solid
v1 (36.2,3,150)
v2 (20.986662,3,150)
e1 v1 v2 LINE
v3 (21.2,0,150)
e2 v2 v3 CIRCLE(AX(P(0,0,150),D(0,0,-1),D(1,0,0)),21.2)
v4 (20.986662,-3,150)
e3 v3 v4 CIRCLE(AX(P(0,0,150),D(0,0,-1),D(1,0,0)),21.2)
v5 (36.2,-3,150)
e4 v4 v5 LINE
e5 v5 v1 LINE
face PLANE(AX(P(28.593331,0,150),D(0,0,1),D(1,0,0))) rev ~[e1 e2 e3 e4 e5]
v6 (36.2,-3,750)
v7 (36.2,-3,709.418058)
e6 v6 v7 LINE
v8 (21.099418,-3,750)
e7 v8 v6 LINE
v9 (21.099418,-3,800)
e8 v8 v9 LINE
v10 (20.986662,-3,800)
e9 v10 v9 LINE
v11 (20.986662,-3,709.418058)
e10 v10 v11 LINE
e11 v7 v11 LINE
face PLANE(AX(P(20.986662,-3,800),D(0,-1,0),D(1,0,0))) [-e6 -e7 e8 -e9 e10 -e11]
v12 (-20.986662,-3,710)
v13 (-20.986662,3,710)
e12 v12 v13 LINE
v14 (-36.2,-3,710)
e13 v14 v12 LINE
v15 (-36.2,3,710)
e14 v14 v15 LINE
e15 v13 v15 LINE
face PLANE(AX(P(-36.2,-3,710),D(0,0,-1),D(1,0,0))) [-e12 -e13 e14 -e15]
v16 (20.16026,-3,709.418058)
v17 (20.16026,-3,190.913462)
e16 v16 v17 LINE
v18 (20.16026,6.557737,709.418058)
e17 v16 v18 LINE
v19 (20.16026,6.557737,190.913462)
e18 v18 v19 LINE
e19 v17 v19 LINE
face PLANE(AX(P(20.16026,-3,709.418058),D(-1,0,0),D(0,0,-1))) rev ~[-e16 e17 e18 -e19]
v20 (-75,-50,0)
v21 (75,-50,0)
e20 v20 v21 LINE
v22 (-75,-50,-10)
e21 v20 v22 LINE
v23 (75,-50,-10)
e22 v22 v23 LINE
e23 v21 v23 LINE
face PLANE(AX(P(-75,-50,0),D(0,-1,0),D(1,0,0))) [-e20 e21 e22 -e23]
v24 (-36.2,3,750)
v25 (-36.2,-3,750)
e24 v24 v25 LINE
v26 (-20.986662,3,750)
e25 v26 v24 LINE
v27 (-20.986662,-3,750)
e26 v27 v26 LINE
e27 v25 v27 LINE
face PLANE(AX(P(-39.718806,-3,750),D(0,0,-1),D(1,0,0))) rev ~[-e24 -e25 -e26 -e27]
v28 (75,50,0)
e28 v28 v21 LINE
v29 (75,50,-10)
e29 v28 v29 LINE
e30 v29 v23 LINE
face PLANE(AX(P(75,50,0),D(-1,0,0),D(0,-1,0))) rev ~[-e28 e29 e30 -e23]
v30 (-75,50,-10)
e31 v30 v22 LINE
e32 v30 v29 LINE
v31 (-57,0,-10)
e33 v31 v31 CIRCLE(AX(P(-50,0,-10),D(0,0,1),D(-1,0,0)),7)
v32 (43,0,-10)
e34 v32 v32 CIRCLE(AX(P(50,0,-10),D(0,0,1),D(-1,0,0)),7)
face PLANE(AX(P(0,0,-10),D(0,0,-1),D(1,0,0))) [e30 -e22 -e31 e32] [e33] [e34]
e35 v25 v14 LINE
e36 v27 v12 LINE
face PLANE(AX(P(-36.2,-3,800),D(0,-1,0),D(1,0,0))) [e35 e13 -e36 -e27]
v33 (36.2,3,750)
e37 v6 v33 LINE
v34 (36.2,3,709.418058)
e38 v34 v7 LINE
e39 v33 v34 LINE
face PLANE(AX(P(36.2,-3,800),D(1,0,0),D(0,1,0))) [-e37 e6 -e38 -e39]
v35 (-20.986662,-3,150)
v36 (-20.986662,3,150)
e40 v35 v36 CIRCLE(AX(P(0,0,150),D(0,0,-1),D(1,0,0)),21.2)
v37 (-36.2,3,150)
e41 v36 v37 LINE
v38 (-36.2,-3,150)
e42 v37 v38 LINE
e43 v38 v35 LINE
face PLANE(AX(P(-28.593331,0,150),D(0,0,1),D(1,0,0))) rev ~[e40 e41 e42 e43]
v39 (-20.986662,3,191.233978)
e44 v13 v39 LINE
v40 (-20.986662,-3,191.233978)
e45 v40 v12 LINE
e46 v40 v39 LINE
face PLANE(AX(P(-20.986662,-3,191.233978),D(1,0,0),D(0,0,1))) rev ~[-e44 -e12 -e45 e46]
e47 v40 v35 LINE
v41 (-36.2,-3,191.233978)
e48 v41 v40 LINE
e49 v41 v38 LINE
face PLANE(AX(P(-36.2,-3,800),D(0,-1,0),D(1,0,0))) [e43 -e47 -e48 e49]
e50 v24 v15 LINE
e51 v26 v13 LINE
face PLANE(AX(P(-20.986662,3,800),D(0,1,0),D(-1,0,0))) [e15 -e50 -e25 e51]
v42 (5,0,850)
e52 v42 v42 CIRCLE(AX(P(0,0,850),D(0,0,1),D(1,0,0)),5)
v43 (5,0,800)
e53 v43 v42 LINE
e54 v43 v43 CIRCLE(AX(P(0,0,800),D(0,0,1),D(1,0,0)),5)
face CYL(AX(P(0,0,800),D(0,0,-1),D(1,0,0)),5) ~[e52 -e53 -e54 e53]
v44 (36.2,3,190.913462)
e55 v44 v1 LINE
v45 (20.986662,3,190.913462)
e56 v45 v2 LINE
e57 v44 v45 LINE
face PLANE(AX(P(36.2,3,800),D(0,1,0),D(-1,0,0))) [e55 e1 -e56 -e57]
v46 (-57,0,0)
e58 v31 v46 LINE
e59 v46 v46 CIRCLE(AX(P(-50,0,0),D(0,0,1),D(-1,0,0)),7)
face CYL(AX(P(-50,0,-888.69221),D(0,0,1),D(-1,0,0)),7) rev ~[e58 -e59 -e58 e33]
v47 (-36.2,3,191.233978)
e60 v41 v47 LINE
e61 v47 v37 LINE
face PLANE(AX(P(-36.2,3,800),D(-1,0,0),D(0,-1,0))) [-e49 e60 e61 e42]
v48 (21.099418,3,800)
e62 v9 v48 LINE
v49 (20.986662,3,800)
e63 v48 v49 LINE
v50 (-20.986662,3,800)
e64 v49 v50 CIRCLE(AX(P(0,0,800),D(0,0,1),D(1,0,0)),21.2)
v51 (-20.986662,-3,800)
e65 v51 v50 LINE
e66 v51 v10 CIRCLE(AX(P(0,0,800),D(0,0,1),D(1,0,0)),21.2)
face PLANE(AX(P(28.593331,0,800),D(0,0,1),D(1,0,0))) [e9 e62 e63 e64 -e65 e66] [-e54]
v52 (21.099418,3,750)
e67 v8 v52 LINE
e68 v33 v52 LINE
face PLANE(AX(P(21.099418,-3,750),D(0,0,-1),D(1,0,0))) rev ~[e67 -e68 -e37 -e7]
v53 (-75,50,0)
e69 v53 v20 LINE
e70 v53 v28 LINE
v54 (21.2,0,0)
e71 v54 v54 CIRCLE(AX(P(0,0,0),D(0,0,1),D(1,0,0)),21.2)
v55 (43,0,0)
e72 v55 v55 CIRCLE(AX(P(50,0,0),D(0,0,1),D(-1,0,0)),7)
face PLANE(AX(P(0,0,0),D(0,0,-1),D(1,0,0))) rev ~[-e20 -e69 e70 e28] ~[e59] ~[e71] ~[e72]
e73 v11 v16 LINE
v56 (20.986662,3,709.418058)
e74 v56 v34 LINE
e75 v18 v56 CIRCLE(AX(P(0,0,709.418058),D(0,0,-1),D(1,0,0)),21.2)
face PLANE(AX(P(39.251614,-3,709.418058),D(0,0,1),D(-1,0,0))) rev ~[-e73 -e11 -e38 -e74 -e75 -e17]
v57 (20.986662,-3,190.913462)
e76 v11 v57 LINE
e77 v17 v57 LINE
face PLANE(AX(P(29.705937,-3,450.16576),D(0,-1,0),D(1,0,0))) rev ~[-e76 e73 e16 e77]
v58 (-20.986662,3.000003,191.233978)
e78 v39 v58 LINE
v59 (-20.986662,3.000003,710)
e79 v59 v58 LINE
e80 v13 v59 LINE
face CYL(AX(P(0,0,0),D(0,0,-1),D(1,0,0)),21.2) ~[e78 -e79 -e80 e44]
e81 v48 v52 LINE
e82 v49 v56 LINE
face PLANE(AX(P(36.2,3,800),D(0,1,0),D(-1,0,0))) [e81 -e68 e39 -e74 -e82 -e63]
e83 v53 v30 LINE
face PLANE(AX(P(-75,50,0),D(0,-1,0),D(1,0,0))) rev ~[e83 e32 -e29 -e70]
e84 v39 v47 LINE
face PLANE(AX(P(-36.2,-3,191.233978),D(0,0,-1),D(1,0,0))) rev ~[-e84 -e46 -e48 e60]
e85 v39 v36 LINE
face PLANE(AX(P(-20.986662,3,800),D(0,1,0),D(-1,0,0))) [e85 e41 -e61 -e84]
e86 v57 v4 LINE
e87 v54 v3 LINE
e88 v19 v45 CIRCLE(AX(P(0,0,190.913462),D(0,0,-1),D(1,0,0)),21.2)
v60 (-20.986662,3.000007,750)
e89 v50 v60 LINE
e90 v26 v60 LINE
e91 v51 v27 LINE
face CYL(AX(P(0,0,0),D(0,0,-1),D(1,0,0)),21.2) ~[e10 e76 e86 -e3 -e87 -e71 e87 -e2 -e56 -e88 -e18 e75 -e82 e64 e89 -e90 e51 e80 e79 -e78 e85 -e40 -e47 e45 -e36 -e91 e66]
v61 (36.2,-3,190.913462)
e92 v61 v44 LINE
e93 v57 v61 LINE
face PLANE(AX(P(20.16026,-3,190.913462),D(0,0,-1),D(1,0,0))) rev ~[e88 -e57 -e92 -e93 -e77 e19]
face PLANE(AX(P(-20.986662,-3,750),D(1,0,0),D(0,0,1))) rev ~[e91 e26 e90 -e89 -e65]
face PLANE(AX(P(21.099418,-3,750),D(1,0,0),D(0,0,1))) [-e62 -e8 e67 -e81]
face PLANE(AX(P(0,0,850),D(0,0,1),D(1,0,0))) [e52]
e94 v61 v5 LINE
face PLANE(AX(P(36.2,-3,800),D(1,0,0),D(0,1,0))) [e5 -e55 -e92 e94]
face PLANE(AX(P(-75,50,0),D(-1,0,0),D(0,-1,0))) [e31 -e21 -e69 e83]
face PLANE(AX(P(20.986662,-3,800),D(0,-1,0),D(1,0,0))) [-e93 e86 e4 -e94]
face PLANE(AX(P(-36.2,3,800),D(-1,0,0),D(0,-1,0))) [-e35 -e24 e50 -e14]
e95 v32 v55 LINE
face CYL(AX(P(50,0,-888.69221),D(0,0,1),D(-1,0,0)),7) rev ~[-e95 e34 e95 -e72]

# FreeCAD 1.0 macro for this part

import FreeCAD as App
import Part
import Sketcher

V = App.Vector
Q = App.Units.Quantity


def add_polygon(sketch, points):
    """Adds a closed chain of lines whose ends are joined by coincident constraints."""
    first, n = sketch.GeometryCount, len(points)
    for a, b in zip(points, points[1:] + points[:1]):
        sketch.addGeometry(Part.LineSegment(App.Vector(*a, 0), App.Vector(*b, 0)), False)
    for i in range(n):
        sketch.addConstraint(Sketcher.Constraint("Coincident", first + i, 2, first + (i + 1) % n, 1))

doc = App.newDocument("Part")
body = doc.addObject("PartDesign::Body", "Body")

sketch1 = body.newObject("Sketcher::SketchObject", "Sketch")
sketch1.AttachmentSupport = (doc.getObject("XY_Plane"), [""])
sketch1.MapMode = "FlatFace"
sketch1.addGeometry(Part.Circle(V(0, 0, 0), V(0, 0, 1), 21), False)
sketch1.addConstraint([
    Sketcher.Constraint("Coincident", 0, 3, -1, 1),
    Sketcher.Constraint("Diameter", 0, Q("42.4 mm")),
])
pad1 = body.newObject("PartDesign::Pad", "Pad")
pad1.Profile = sketch1
pad1.Length = 800

sketch2 = body.newObject("Sketcher::SketchObject", "Sketch001")
sketch2.AttachmentSupport = (doc.getObject("XY_Plane"), [""])
sketch2.MapMode = "FlatFace"
sketch2.AttachmentOffset = App.Placement(V(0, 0, 800), App.Rotation())
sketch2.addGeometry(Part.Circle(V(0, 0, 0), V(0, 0, 1), 5), False)
sketch2.addConstraint([
    Sketcher.Constraint("Coincident", 0, 3, -1, 1),
    Sketcher.Constraint("Diameter", 0, Q("10 mm")),
])
pad2 = body.newObject("PartDesign::Pad", "Pad001")
pad2.Profile = sketch2
pad2.Length = 50

sketch3 = body.newObject("Sketcher::SketchObject", "Sketch002")
sketch3.AttachmentSupport = (doc.getObject("XY_Plane"), [""])
sketch3.MapMode = "FlatFace"
add_polygon(sketch3, [(-75, -50), (-75, 50), (75, 50), (75, -50)])
sketch3.addConstraint([
    Sketcher.Constraint("Vertical", 0),
    Sketcher.Constraint("Horizontal", 1),
    Sketcher.Constraint("Vertical", 2),
    Sketcher.Constraint("Horizontal", 3),
    Sketcher.Constraint("Symmetric", 0, 2, 2, 2, -1, 1),
    Sketcher.Constraint("DistanceX", 1, 1, 1, 2, Q("150 mm")),
    Sketcher.Constraint("DistanceY", 0, 1, 0, 2, Q("100 mm")),
])
pad3 = body.newObject("PartDesign::Pad", "Pad002")
pad3.Profile = sketch3
pad3.Length = 10
pad3.Reversed = True

sketch4 = body.newObject("Sketcher::SketchObject", "Sketch003")
sketch4.AttachmentSupport = (doc.getObject("XY_Plane"), [""])
sketch4.MapMode = "FlatFace"
sketch4.AttachmentOffset = App.Placement(V(0, 0, -10), App.Rotation())
sketch4.addGeometry([
    Part.Circle(V(-50, 0, 0), V(0, 0, 1), 7),
    Part.Circle(V(50, 0, 0), V(0, 0, 1), 7),
], False)
sketch4.addConstraint([
    Sketcher.Constraint("Equal", 0, 1),
    Sketcher.Constraint("Symmetric", 0, 3, 1, 3, -1, 1),
    Sketcher.Constraint("PointOnObject", 0, 3, -1),
    Sketcher.Constraint("Diameter", 0, Q("14 mm")),
    Sketcher.Constraint("DistanceX", 0, 3, -1, 1, Q("50 mm")),
])
doc.recompute()
hole = body.newObject("PartDesign::Hole", "Hole")
hole.Profile = sketch4
hole.ThreadType = "None"
hole.Diameter = 14
hole.DepthType = "ThroughAll"
hole.Reversed = True

sketch5 = body.newObject("Sketcher::SketchObject", "Sketch004")
sketch5.AttachmentSupport = (doc.getObject("XY_Plane"), [""])
sketch5.MapMode = "FlatFace"
sketch5.AttachmentOffset = App.Placement(V(0, 0, 800), App.Rotation())
add_polygon(sketch5, [(36, -3), (36, 3), (21, 3), (21, -3)])
add_polygon(sketch5, [(-36, 3), (-36, -3), (-21, -3), (-21, 3)])
sketch5.addConstraint([
    Sketcher.Constraint("Vertical", 0),
    Sketcher.Constraint("Horizontal", 1),
    Sketcher.Constraint("Vertical", 2),
    Sketcher.Constraint("Horizontal", 3),
    Sketcher.Constraint("Vertical", 4),
    Sketcher.Constraint("Horizontal", 5),
    Sketcher.Constraint("Vertical", 6),
    Sketcher.Constraint("Horizontal", 7),
    Sketcher.Constraint("Symmetric", 0, 2, 4, 2, -1, 1),
    Sketcher.Constraint("Symmetric", 2, 2, 6, 2, -1, 1),
    Sketcher.Constraint("Horizontal", 3, 2, 4, 2),
    Sketcher.Constraint("DistanceY", 0, 1, 0, 2, Q("6 mm")),
    Sketcher.Constraint("DistanceX", -1, 1, 0, 2, Q("36.2 mm")),
    Sketcher.Constraint("DistanceX", 1, 2, 1, 1, Q("15.213338 mm")),
])
pad4 = body.newObject("PartDesign::Pad", "Pad003")
pad4.Profile = sketch5
pad4.Length = 650
pad4.Reversed = True

sketch6 = body.newObject("Sketcher::SketchObject", "Sketch005")
sketch6.AttachmentSupport = (doc.getObject("XZ_Plane"), [""])
sketch6.MapMode = "FlatFace"
sketch6.AttachmentOffset = App.Placement(V(0, 0, 3), App.Rotation())
add_polygon(sketch6, [(-40, 800), (-40, 750), (-21, 750), (-21, 800)])
add_polygon(sketch6, [(21, 800), (21, 750), (39, 750), (39, 800)])
sketch6.addConstraint([
    Sketcher.Constraint("Vertical", 0),
    Sketcher.Constraint("Horizontal", 1),
    Sketcher.Constraint("Vertical", 2),
    Sketcher.Constraint("Horizontal", 3),
    Sketcher.Constraint("Vertical", 4),
    Sketcher.Constraint("Horizontal", 5),
    Sketcher.Constraint("Vertical", 6),
    Sketcher.Constraint("Horizontal", 7),
    Sketcher.Constraint("Horizontal", 1, 2, 4, 2),
    Sketcher.Constraint("Horizontal", 3, 2, 6, 2),
    Sketcher.Constraint("DistanceY", 0, 2, 0, 1, Q("50 mm")),
    Sketcher.Constraint("DistanceY", -1, 1, 0, 2, Q("750 mm")),
    Sketcher.Constraint("DistanceX", 1, 1, 1, 2, Q("18.732145 mm")),
    Sketcher.Constraint("DistanceX", 5, 1, 5, 2, Q("18.157326 mm")),
    Sketcher.Constraint("DistanceX", 1, 2, -1, 1, Q("20.986662 mm")),
    Sketcher.Constraint("DistanceX", -1, 1, 4, 2, Q("21.099418 mm")),
])
pocket1 = body.newObject("PartDesign::Pocket", "Pocket")
pocket1.Profile = sketch6
pocket1.Length = 25

sketch7 = body.newObject("Sketcher::SketchObject", "Sketch006")
sketch7.AttachmentSupport = (doc.getObject("XZ_Plane"), [""])
sketch7.MapMode = "FlatFace"
sketch7.AttachmentOffset = App.Placement(V(0, 0, 3), App.Rotation())
add_polygon(sketch7, [(-36, 710), (-36, 191), (-21, 191), (-21, 710)])
add_polygon(sketch7, [(39, 191), (39, 709), (20, 709), (20, 191)])
sketch7.addConstraint([
    Sketcher.Constraint("Vertical", 0),
    Sketcher.Constraint("Horizontal", 1),
    Sketcher.Constraint("Vertical", 2),
    Sketcher.Constraint("Horizontal", 3),
    Sketcher.Constraint("Vertical", 4),
    Sketcher.Constraint("Horizontal", 5),
    Sketcher.Constraint("Vertical", 6),
    Sketcher.Constraint("Horizontal", 7),
    Sketcher.Constraint("DistanceY", -1, 1, 2, 2, Q("710 mm")),
    Sketcher.Constraint("DistanceX", 0, 2, -1, 1, Q("36.2 mm")),
    Sketcher.Constraint("DistanceX", 1, 1, 1, 2, Q("15.213338 mm")),
    Sketcher.Constraint("DistanceY", 0, 2, 0, 1, Q("518.766022 mm")),
    Sketcher.Constraint("DistanceX", 5, 2, 5, 1, Q("19.091354 mm")),
    Sketcher.Constraint("DistanceY", 4, 1, 4, 2, Q("518.504596 mm")),
    Sketcher.Constraint("DistanceY", -1, 1, 4, 2, Q("709.418058 mm")),
    Sketcher.Constraint("DistanceX", -1, 1, 5, 2, Q("20.16026 mm")),
])
pocket2 = body.newObject("PartDesign::Pocket", "Pocket001")
pocket2.Profile = sketch7
pocket2.Length = 25

doc.recompute()
